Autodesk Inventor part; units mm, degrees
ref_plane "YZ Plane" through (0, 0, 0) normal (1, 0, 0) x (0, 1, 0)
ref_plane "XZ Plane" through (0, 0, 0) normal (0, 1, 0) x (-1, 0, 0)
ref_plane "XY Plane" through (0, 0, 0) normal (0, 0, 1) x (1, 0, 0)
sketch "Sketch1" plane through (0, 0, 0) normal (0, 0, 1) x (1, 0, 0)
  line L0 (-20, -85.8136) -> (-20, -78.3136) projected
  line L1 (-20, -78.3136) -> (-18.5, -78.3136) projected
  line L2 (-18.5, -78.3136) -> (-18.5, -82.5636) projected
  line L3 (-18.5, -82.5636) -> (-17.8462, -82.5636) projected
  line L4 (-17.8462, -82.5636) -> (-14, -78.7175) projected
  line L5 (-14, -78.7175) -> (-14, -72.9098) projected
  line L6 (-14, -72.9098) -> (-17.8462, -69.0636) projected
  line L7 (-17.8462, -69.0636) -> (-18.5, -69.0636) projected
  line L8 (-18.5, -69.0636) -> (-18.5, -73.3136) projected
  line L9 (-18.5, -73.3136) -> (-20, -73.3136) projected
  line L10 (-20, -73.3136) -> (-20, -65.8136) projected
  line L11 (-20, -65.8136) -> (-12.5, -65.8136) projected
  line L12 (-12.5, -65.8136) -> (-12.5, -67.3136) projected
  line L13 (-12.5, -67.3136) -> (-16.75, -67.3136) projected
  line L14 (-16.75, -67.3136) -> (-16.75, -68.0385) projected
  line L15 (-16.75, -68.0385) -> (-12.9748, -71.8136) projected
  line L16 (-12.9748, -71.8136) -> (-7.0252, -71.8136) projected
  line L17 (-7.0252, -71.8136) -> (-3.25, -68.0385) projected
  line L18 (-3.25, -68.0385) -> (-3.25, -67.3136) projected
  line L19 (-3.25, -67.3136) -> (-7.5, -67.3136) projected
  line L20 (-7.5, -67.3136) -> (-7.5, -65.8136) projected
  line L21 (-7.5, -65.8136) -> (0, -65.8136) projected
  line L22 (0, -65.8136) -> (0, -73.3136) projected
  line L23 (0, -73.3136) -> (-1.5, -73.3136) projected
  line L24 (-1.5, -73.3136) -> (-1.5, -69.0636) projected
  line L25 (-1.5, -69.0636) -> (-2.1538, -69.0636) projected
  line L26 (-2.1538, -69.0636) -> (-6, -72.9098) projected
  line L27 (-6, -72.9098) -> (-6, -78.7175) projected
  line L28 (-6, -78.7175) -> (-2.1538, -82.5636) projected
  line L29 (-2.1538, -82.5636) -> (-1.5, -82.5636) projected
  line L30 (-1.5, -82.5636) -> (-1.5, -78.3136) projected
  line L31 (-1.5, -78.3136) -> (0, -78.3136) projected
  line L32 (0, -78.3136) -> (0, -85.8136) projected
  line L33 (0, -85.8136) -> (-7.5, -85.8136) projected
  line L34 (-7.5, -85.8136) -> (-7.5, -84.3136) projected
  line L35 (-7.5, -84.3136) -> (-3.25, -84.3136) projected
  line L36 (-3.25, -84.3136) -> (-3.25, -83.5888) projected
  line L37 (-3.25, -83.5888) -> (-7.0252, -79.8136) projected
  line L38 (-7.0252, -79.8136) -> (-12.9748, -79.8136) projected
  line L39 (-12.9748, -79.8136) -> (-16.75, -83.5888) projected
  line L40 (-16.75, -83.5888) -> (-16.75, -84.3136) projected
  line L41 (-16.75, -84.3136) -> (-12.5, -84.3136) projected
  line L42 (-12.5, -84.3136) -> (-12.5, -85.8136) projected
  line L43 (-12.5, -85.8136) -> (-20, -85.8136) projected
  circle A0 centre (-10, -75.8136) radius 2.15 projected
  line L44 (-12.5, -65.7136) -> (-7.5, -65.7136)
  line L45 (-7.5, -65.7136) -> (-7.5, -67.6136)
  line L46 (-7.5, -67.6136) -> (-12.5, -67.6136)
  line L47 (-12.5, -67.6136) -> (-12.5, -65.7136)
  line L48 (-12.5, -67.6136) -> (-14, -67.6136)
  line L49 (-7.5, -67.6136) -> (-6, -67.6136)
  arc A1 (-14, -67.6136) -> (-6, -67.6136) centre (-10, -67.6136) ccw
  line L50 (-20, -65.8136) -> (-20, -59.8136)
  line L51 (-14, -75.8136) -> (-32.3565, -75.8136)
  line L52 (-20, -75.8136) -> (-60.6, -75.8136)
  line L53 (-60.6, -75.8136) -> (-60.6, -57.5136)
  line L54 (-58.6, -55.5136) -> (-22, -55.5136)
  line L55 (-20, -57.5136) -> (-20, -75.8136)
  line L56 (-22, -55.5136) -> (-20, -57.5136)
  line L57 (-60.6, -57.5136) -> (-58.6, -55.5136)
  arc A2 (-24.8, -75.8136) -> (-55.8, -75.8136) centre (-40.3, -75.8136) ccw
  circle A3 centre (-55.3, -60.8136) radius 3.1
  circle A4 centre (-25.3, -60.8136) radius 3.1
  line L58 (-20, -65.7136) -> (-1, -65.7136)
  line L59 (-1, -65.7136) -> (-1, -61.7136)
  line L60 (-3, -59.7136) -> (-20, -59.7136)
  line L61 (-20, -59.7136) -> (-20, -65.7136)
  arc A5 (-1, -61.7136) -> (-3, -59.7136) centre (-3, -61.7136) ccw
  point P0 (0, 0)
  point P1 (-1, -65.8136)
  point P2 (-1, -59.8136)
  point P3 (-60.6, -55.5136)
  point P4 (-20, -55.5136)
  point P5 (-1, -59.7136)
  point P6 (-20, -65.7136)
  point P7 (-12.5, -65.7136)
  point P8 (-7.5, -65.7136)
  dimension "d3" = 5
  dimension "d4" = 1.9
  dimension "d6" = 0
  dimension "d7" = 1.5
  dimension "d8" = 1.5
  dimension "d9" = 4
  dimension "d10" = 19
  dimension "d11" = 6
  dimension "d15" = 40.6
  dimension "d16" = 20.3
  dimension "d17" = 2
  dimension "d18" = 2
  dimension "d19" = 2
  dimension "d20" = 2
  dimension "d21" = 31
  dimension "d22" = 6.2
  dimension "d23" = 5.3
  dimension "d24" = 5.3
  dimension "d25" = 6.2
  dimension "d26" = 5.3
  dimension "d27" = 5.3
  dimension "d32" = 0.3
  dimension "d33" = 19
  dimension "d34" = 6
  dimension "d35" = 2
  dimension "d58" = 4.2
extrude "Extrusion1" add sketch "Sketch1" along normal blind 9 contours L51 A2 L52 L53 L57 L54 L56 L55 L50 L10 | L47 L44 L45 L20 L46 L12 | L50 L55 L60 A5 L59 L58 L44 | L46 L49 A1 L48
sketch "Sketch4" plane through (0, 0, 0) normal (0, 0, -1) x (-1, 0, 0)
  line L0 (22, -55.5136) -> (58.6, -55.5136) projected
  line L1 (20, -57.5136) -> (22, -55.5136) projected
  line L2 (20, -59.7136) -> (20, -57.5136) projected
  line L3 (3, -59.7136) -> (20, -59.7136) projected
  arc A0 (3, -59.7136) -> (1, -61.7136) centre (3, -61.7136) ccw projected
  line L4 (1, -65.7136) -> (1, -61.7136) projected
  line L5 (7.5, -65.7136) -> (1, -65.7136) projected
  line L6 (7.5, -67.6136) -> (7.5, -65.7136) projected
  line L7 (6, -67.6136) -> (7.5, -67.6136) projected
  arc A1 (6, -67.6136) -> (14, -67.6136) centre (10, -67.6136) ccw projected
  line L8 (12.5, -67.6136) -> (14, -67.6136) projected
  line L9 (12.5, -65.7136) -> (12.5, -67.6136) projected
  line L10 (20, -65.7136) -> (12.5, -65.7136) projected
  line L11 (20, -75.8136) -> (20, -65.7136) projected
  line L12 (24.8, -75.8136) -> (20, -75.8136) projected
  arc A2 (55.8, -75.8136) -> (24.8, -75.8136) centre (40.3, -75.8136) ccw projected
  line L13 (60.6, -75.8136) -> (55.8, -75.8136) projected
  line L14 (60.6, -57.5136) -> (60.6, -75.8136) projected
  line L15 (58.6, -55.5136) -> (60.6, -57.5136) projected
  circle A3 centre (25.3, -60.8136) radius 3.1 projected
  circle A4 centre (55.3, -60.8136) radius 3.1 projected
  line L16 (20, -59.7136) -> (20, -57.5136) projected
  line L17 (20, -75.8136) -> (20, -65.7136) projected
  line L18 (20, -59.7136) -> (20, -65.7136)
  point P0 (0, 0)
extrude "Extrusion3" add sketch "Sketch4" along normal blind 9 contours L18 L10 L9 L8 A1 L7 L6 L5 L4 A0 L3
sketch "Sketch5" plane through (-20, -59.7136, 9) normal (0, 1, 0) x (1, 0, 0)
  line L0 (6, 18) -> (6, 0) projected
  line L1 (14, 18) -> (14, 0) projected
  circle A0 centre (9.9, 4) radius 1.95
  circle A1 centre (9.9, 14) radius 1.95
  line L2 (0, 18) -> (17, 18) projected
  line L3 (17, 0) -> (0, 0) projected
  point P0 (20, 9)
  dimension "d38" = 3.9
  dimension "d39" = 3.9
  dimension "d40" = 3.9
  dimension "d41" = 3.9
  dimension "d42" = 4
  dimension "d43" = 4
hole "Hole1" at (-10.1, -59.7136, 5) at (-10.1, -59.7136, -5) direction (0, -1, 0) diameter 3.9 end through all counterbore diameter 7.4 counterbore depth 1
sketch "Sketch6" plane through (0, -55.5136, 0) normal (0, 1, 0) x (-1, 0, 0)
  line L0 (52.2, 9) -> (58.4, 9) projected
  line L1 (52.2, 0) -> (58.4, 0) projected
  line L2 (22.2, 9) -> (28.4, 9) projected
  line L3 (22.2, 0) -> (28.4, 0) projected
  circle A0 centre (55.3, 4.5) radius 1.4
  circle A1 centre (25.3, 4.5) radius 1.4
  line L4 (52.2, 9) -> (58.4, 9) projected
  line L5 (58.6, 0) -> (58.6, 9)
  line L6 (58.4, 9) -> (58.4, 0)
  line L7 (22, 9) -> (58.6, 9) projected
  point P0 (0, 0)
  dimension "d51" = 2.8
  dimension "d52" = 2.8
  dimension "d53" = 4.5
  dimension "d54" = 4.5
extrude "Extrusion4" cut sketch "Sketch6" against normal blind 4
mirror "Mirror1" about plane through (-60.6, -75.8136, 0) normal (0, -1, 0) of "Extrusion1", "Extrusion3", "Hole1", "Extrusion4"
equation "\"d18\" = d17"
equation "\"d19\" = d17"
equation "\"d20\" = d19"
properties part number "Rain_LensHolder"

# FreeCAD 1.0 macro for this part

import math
import FreeCAD as App
import Part
import Sketcher

doc = App.newDocument("Part")
body = doc.addObject("PartDesign::Body", "Body")

# Sketch on XY plane
sketch1 = body.newObject("Sketcher::SketchObject", "Sketch")
sketch1.AttachmentSupport = (doc.getObject("XY_Plane"), [""])
sketch1.MapMode = "FlatFace"
sketch1.addGeometry([
    Part.LineSegment(App.Vector(-24.8, -75.8, 0), App.Vector(-20, -75.8, 0)),  # 0
    Part.LineSegment(App.Vector(-20, -75.8, 0), App.Vector(-20, -65.7, 0)),  # 1
    Part.LineSegment(App.Vector(-20, -65.7, 0), App.Vector(-12.5, -65.7, 0)),  # 2
    Part.LineSegment(App.Vector(-12.5, -65.7, 0), App.Vector(-12.5, -67.6, 0)),  # 3
    Part.LineSegment(App.Vector(-12.5, -67.6, 0), App.Vector(-14, -67.6, 0)),  # 4
    Part.ArcOfCircle(Part.Circle(App.Vector(-10, -67.6, 0), App.Vector(0, 0, 1), 4), math.radians(180), math.radians(360)),  # 5
    Part.LineSegment(App.Vector(-6, -67.6, 0), App.Vector(-7.5, -67.6, 0)),  # 6
    Part.LineSegment(App.Vector(-7.5, -67.6, 0), App.Vector(-7.5, -65.7, 0)),  # 7
    Part.LineSegment(App.Vector(-7.5, -65.7, 0), App.Vector(-1, -65.7, 0)),  # 8
    Part.LineSegment(App.Vector(-1, -65.7, 0), App.Vector(-1, -61.7, 0)),  # 9
    Part.ArcOfCircle(Part.Circle(App.Vector(-3, -61.7, 0), App.Vector(0, 0, 1), 2), math.radians(0), math.radians(90)),  # 10
    Part.LineSegment(App.Vector(-3, -59.7, 0), App.Vector(-20, -59.7, 0)),  # 11
    Part.LineSegment(App.Vector(-20, -59.7, 0), App.Vector(-20, -57.5, 0)),  # 12
    Part.LineSegment(App.Vector(-20, -57.5, 0), App.Vector(-22, -55.5, 0)),  # 13
    Part.LineSegment(App.Vector(-22, -55.5, 0), App.Vector(-58.6, -55.5, 0)),  # 14
    Part.LineSegment(App.Vector(-58.6, -55.5, 0), App.Vector(-60.6, -57.5, 0)),  # 15
    Part.LineSegment(App.Vector(-60.6, -57.5, 0), App.Vector(-60.6, -75.8, 0)),  # 16
    Part.LineSegment(App.Vector(-60.6, -75.8, 0), App.Vector(-55.8, -75.8, 0)),  # 17
    Part.ArcOfCircle(Part.Circle(App.Vector(-40.3, -75.8, 0), App.Vector(0, 0, 1), 15.5), math.radians(0), math.radians(180)),  # 18
    Part.Circle(App.Vector(-55.3, -60.8, 0), App.Vector(0, 0, 1), 3.1),  # 19
    Part.Circle(App.Vector(-25.3, -60.8, 0), App.Vector(0, 0, 1), 3.1),  # 20
], False)
sketch1.addConstraint([
    Sketcher.Constraint("Coincident", 0, 2, 1, 1),
    Sketcher.Constraint("Coincident", 1, 2, 2, 1),
    Sketcher.Constraint("Coincident", 2, 2, 3, 1),
    Sketcher.Constraint("Coincident", 3, 2, 4, 1),
    Sketcher.Constraint("Coincident", 4, 2, 5, 1),
    Sketcher.Constraint("Coincident", 5, 2, 6, 1),
    Sketcher.Constraint("Coincident", 6, 2, 7, 1),
    Sketcher.Constraint("Coincident", 7, 2, 8, 1),
    Sketcher.Constraint("Coincident", 8, 2, 9, 1),
    Sketcher.Constraint("Tangent", 9, 2, 10, 1),
    Sketcher.Constraint("Tangent", 10, 2, 11, 1),
    Sketcher.Constraint("Coincident", 11, 2, 12, 1),
    Sketcher.Constraint("Coincident", 12, 2, 13, 1),
    Sketcher.Constraint("Coincident", 13, 2, 14, 1),
    Sketcher.Constraint("Coincident", 14, 2, 15, 1),
    Sketcher.Constraint("Coincident", 15, 2, 16, 1),
    Sketcher.Constraint("Coincident", 16, 2, 17, 1),
    Sketcher.Constraint("Coincident", 17, 2, 18, 2),
    Sketcher.Constraint("Coincident", 18, 1, 0, 1),
    Sketcher.Constraint("Horizontal", 0),
    Sketcher.Constraint("Vertical", 1),
    Sketcher.Constraint("Horizontal", 2),
    Sketcher.Constraint("Vertical", 3),
    Sketcher.Constraint("Horizontal", 4),
    Sketcher.Constraint("Horizontal", 6),
    Sketcher.Constraint("Vertical", 7),
    Sketcher.Constraint("Horizontal", 8),
    Sketcher.Constraint("Vertical", 9),
    Sketcher.Constraint("Horizontal", 11),
    Sketcher.Constraint("Vertical", 12),
    Sketcher.Constraint("Horizontal", 14),
    Sketcher.Constraint("Vertical", 16),
    Sketcher.Constraint("Horizontal", 17),
    Sketcher.Constraint("Equal", 19, 20),
    Sketcher.Constraint("Perpendicular", 13, 15),
    Sketcher.Constraint("Horizontal", 19, 3, 20, 3),
    Sketcher.Constraint("Horizontal", 18, 3, 0, 2),
    Sketcher.Constraint("Horizontal", 5, 3, 3, 2),
    Sketcher.Constraint("Horizontal", 4, 2, 5, 2),
    Sketcher.Constraint("Horizontal", 2, 2, 7, 2),
    Sketcher.Constraint("Horizontal", 12, 2, 15, 2),
    Sketcher.Constraint("Horizontal", 0, 2, 16, 2),
    Sketcher.Constraint("Vertical", 1, 2, 11, 2),
    Sketcher.Constraint("Equal", 4, 6),
    Sketcher.Constraint("Equal", 0, 17),
    Sketcher.Constraint("Equal", 13, 15),
    Sketcher.Constraint("Radius", 5, 4.0),
    Sketcher.Constraint("Radius", 10, 2.0),
    Sketcher.Constraint("Diameter", 19, 6.2),
    Sketcher.Constraint("Radius", 18, 15.5),
    Sketcher.Constraint("DistanceY", 9, 1, 9, 2, 4.0),
    Sketcher.Constraint("DistanceX", 4, 2, 4, 1, 1.5),
    Sketcher.Constraint("DistanceY", 3, 2, 3, 1, 1.9),
    Sketcher.Constraint("DistanceX", 5, 2, -1, 1, 6.0),
    Sketcher.Constraint("DistanceX", 1, 2, 4, 2, 6.0),
    Sketcher.Constraint("DistanceX", 5, 2, 8, 2, 5.0),
    Sketcher.Constraint("DistanceX", 13, 2, 12, 2, 2.0),
    Sketcher.Constraint("DistanceX", 20, 3, 0, 2, 5.3),
    Sketcher.Constraint("DistanceX", 18, 3, 0, 2, 20.3),
    Sketcher.Constraint("DistanceY", 11, 2, 13, 2, 4.2),
    Sketcher.Constraint("DistanceY", 20, 3, 13, 2, 5.3),
    Sketcher.Constraint("DistanceY", 18, 3, 14, 2, 20.3),
    Sketcher.Constraint("DistanceX", 15, 2, 19, 3, 5.3),
    Sketcher.Constraint("DistanceY", 5, 3, -1, 1, 67.6136),
])
pad1 = body.newObject("PartDesign::Pad", "Pad")
pad1.Profile = sketch1
pad1.Length = 9

# Sketch on XY plane
sketch2 = body.newObject("Sketcher::SketchObject", "Sketch001")
sketch2.AttachmentSupport = (doc.getObject("XY_Plane"), [""])
sketch2.MapMode = "FlatFace"
sketch2.addGeometry([
    Part.LineSegment(App.Vector(-20, -65.7, 0), App.Vector(-20, -59.7, 0)),  # 0
    Part.LineSegment(App.Vector(-20, -59.7, 0), App.Vector(-3, -59.7, 0)),  # 1
    Part.ArcOfCircle(Part.Circle(App.Vector(-3, -61.7, 0), App.Vector(0, 0, 1), 2), math.radians(0), math.radians(90)),  # 2
    Part.LineSegment(App.Vector(-1, -61.7, 0), App.Vector(-1, -65.7, 0)),  # 3
    Part.LineSegment(App.Vector(-1, -65.7, 0), App.Vector(-7.5, -65.7, 0)),  # 4
    Part.LineSegment(App.Vector(-7.5, -65.7, 0), App.Vector(-7.5, -67.6, 0)),  # 5
    Part.LineSegment(App.Vector(-7.5, -67.6, 0), App.Vector(-6, -67.6, 0)),  # 6
    Part.ArcOfCircle(Part.Circle(App.Vector(-10, -67.6, 0), App.Vector(0, 0, 1), 4), math.radians(180), math.radians(360)),  # 7
    Part.LineSegment(App.Vector(-14, -67.6, 0), App.Vector(-12.5, -67.6, 0)),  # 8
    Part.LineSegment(App.Vector(-12.5, -67.6, 0), App.Vector(-12.5, -65.7, 0)),  # 9
    Part.LineSegment(App.Vector(-12.5, -65.7, 0), App.Vector(-20, -65.7, 0)),  # 10
], False)
sketch2.addConstraint([
    Sketcher.Constraint("Coincident", 0, 2, 1, 1),
    Sketcher.Constraint("Tangent", 1, 2, 2, 2),
    Sketcher.Constraint("Tangent", 2, 1, 3, 1),
    Sketcher.Constraint("Coincident", 3, 2, 4, 1),
    Sketcher.Constraint("Coincident", 4, 2, 5, 1),
    Sketcher.Constraint("Coincident", 5, 2, 6, 1),
    Sketcher.Constraint("Coincident", 6, 2, 7, 2),
    Sketcher.Constraint("Coincident", 7, 1, 8, 1),
    Sketcher.Constraint("Coincident", 8, 2, 9, 1),
    Sketcher.Constraint("Coincident", 9, 2, 10, 1),
    Sketcher.Constraint("Coincident", 10, 2, 0, 1),
    Sketcher.Constraint("Vertical", 0),
    Sketcher.Constraint("Horizontal", 1),
    Sketcher.Constraint("Vertical", 3),
    Sketcher.Constraint("Horizontal", 4),
    Sketcher.Constraint("Vertical", 5),
    Sketcher.Constraint("Horizontal", 6),
    Sketcher.Constraint("Horizontal", 8),
    Sketcher.Constraint("Vertical", 9),
    Sketcher.Constraint("Horizontal", 10),
    Sketcher.Constraint("Horizontal", 7, 3, 5, 2),
    Sketcher.Constraint("Horizontal", 6, 2, 7, 1),
    Sketcher.Constraint("Horizontal", 4, 2, 9, 2),
    Sketcher.Constraint("Equal", 6, 8),
    Sketcher.Constraint("Radius", 2, 2.0),
    Sketcher.Constraint("Radius", 7, 4.0),
    Sketcher.Constraint("DistanceX", 1, 1, 1, 2, 17.0),
    Sketcher.Constraint("DistanceY", 0, 1, 0, 2, 6.0),
    Sketcher.Constraint("DistanceX", 4, 2, 4, 1, 6.5),
    Sketcher.Constraint("DistanceX", 6, 1, 6, 2, 1.5),
    Sketcher.Constraint("DistanceY", 5, 2, 5, 1, 1.9),
    Sketcher.Constraint("DistanceX", 2, 3, -1, 1, 3.0),
    Sketcher.Constraint("DistanceY", 2, 3, -1, 1, 61.7136),
])
pad2 = body.newObject("PartDesign::Pad", "Pad001")
pad2.Profile = sketch2
pad2.Length = 9
pad2.Reversed = True

# Sketch on XZ plane
sketch3 = body.newObject("Sketcher::SketchObject", "Sketch002")
sketch3.AttachmentSupport = (doc.getObject("XZ_Plane"), [""])
sketch3.MapMode = "FlatFace"
sketch3.AttachmentOffset = App.Placement(App.Vector(0, 0, 59.7136), App.Rotation())
sketch3.addGeometry([
    Part.Circle(App.Vector(-10.1, 5, 0), App.Vector(0, 0, 1), 1.9),
    Part.Circle(App.Vector(-10.1, -5, 0), App.Vector(0, 0, 1), 1.9),
], False)
sketch3.addConstraint([
    Sketcher.Constraint("Equal", 0, 1),
    Sketcher.Constraint("Symmetric", 0, 3, 1, 3, -1),
    Sketcher.Constraint("Diameter", 0, 3.9),
    Sketcher.Constraint("DistanceY", -1, 1, 0, 3, 5.0),
    Sketcher.Constraint("DistanceX", 0, 3, -1, 1, 10.1),
])
doc.recompute()
hole = body.newObject("PartDesign::Hole", "Hole")
hole.Profile = sketch3
hole.ThreadType = "None"
hole.Diameter = 3.9
hole.DepthType = "ThroughAll"
hole.HoleCutType = "Counterbore"
hole.HoleCutDiameter = 7.4
hole.HoleCutDepth = 1
hole.Reversed = True

# Sketch on XZ plane
sketch4 = body.newObject("Sketcher::SketchObject", "Sketch003")
sketch4.AttachmentSupport = (doc.getObject("XZ_Plane"), [""])
sketch4.MapMode = "FlatFace"
sketch4.AttachmentOffset = App.Placement(App.Vector(0, 0, 55.5136), App.Rotation())
sketch4.addGeometry([
    Part.Circle(App.Vector(-55.3, 4.5, 0), App.Vector(0, 0, 1), 1.4),
    Part.Circle(App.Vector(-25.3, 4.5, 0), App.Vector(0, 0, 1), 1.4),
], False)
sketch4.addConstraint([
    Sketcher.Constraint("Equal", 0, 1),
    Sketcher.Constraint("Horizontal", 0, 3, 1, 3),
    Sketcher.Constraint("Diameter", 0, 2.8),
    Sketcher.Constraint("DistanceY", -1, 1, 0, 3, 4.5),
    Sketcher.Constraint("DistanceX", 0, 3, 1, 3, 30.0),
    Sketcher.Constraint("DistanceX", 0, 3, -1, 1, 55.3),
])
pocket1 = body.newObject("PartDesign::Pocket", "Pocket")
pocket1.Profile = sketch4
pocket1.Length = 4
pocket1.Reversed = True
doc.recompute()

datumplane = body.newObject("PartDesign::Plane", "DatumPlane")
datumplane.AttachmentSupport = (doc.getObject("XZ_Plane"), [""])
datumplane.MapMode = "FlatFace"
datumplane.AttachmentOffset = App.Placement(App.Vector(0, 0, 75.8136), App.Rotation())
mirrored = body.newObject("PartDesign::Mirrored", "Mirrored")
mirrored.Originals = [pad1, pad2, hole, pocket1]
mirrored.MirrorPlane = (datumplane, [""])
body.Tip = mirrored

doc.recompute()
